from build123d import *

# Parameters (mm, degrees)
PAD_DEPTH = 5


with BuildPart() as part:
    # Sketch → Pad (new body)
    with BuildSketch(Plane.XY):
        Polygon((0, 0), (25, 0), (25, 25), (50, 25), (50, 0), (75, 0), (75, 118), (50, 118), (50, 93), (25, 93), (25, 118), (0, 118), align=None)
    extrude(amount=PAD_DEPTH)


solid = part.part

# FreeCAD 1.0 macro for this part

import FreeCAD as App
import Part
import Sketcher
from FreeCAD import Vector


def add_polygon(sketch, points):
    """Adds a closed chain of lines whose ends are joined by coincident constraints."""
    first, n = sketch.GeometryCount, len(points)
    for a, b in zip(points, points[1:] + points[:1]):
        sketch.addGeometry(Part.LineSegment(App.Vector(*a, 0), App.Vector(*b, 0)), False)
    for i in range(n):
        sketch.addConstraint(Sketcher.Constraint("Coincident", first + i, 2, first + (i + 1) % n, 1))

doc = App.newDocument("Part")
body = doc.addObject("PartDesign::Body", "Body")

# Sketch on XY plane
sketch1 = body.newObject("Sketcher::SketchObject", "Sketch")
sketch1.AttachmentSupport = (doc.getObject("XY_Plane"), [""])
sketch1.MapMode = "FlatFace"
add_polygon(sketch1, [(0, 0), (25, 0), (25, 25), (50, 25), (50, 0), (75, 0), (75, 118), (50, 118), (50, 93), (25, 93), (25, 118), (0, 118)])  # lines 0-11
sketch1.addConstraint([
    Sketcher.Constraint("Horizontal", 0),
    Sketcher.Constraint("Vertical", 1),
    Sketcher.Constraint("Horizontal", 2),
    Sketcher.Constraint("Vertical", 3),
    Sketcher.Constraint("Horizontal", 4),
    Sketcher.Constraint("Vertical", 5),
    Sketcher.Constraint("Horizontal", 6),
    Sketcher.Constraint("Vertical", 7),
    Sketcher.Constraint("Horizontal", 8),
    Sketcher.Constraint("Vertical", 9),
    Sketcher.Constraint("Horizontal", 10),
    Sketcher.Constraint("Vertical", 11),
    Sketcher.Constraint("Coincident", 11, 2, -1, 1),
    Sketcher.Constraint("PointOnObject", 3, 2, -1),
    Sketcher.Constraint("Horizontal", 6, 2, 9, 2),
    Sketcher.Constraint("Vertical", 3, 2, 6, 2),
    Sketcher.Constraint("Vertical", 1, 2, 8, 2),
    Sketcher.Constraint("Equal", 0, 2),
    Sketcher.Constraint("Equal", 2, 4),
    Sketcher.Constraint("Equal", 10, 1),
    Sketcher.Constraint("Equal", 3, 7),
    Sketcher.Constraint("DistanceX", 0, 1, 0, 2, 25.0),
    Sketcher.Constraint("DistanceY", 5, 1, 5, 2, 118.0),
])
pad1 = body.newObject("PartDesign::Pad", "Pad")
pad1.Profile = sketch1
pad1.Length = 5

doc.recompute()
